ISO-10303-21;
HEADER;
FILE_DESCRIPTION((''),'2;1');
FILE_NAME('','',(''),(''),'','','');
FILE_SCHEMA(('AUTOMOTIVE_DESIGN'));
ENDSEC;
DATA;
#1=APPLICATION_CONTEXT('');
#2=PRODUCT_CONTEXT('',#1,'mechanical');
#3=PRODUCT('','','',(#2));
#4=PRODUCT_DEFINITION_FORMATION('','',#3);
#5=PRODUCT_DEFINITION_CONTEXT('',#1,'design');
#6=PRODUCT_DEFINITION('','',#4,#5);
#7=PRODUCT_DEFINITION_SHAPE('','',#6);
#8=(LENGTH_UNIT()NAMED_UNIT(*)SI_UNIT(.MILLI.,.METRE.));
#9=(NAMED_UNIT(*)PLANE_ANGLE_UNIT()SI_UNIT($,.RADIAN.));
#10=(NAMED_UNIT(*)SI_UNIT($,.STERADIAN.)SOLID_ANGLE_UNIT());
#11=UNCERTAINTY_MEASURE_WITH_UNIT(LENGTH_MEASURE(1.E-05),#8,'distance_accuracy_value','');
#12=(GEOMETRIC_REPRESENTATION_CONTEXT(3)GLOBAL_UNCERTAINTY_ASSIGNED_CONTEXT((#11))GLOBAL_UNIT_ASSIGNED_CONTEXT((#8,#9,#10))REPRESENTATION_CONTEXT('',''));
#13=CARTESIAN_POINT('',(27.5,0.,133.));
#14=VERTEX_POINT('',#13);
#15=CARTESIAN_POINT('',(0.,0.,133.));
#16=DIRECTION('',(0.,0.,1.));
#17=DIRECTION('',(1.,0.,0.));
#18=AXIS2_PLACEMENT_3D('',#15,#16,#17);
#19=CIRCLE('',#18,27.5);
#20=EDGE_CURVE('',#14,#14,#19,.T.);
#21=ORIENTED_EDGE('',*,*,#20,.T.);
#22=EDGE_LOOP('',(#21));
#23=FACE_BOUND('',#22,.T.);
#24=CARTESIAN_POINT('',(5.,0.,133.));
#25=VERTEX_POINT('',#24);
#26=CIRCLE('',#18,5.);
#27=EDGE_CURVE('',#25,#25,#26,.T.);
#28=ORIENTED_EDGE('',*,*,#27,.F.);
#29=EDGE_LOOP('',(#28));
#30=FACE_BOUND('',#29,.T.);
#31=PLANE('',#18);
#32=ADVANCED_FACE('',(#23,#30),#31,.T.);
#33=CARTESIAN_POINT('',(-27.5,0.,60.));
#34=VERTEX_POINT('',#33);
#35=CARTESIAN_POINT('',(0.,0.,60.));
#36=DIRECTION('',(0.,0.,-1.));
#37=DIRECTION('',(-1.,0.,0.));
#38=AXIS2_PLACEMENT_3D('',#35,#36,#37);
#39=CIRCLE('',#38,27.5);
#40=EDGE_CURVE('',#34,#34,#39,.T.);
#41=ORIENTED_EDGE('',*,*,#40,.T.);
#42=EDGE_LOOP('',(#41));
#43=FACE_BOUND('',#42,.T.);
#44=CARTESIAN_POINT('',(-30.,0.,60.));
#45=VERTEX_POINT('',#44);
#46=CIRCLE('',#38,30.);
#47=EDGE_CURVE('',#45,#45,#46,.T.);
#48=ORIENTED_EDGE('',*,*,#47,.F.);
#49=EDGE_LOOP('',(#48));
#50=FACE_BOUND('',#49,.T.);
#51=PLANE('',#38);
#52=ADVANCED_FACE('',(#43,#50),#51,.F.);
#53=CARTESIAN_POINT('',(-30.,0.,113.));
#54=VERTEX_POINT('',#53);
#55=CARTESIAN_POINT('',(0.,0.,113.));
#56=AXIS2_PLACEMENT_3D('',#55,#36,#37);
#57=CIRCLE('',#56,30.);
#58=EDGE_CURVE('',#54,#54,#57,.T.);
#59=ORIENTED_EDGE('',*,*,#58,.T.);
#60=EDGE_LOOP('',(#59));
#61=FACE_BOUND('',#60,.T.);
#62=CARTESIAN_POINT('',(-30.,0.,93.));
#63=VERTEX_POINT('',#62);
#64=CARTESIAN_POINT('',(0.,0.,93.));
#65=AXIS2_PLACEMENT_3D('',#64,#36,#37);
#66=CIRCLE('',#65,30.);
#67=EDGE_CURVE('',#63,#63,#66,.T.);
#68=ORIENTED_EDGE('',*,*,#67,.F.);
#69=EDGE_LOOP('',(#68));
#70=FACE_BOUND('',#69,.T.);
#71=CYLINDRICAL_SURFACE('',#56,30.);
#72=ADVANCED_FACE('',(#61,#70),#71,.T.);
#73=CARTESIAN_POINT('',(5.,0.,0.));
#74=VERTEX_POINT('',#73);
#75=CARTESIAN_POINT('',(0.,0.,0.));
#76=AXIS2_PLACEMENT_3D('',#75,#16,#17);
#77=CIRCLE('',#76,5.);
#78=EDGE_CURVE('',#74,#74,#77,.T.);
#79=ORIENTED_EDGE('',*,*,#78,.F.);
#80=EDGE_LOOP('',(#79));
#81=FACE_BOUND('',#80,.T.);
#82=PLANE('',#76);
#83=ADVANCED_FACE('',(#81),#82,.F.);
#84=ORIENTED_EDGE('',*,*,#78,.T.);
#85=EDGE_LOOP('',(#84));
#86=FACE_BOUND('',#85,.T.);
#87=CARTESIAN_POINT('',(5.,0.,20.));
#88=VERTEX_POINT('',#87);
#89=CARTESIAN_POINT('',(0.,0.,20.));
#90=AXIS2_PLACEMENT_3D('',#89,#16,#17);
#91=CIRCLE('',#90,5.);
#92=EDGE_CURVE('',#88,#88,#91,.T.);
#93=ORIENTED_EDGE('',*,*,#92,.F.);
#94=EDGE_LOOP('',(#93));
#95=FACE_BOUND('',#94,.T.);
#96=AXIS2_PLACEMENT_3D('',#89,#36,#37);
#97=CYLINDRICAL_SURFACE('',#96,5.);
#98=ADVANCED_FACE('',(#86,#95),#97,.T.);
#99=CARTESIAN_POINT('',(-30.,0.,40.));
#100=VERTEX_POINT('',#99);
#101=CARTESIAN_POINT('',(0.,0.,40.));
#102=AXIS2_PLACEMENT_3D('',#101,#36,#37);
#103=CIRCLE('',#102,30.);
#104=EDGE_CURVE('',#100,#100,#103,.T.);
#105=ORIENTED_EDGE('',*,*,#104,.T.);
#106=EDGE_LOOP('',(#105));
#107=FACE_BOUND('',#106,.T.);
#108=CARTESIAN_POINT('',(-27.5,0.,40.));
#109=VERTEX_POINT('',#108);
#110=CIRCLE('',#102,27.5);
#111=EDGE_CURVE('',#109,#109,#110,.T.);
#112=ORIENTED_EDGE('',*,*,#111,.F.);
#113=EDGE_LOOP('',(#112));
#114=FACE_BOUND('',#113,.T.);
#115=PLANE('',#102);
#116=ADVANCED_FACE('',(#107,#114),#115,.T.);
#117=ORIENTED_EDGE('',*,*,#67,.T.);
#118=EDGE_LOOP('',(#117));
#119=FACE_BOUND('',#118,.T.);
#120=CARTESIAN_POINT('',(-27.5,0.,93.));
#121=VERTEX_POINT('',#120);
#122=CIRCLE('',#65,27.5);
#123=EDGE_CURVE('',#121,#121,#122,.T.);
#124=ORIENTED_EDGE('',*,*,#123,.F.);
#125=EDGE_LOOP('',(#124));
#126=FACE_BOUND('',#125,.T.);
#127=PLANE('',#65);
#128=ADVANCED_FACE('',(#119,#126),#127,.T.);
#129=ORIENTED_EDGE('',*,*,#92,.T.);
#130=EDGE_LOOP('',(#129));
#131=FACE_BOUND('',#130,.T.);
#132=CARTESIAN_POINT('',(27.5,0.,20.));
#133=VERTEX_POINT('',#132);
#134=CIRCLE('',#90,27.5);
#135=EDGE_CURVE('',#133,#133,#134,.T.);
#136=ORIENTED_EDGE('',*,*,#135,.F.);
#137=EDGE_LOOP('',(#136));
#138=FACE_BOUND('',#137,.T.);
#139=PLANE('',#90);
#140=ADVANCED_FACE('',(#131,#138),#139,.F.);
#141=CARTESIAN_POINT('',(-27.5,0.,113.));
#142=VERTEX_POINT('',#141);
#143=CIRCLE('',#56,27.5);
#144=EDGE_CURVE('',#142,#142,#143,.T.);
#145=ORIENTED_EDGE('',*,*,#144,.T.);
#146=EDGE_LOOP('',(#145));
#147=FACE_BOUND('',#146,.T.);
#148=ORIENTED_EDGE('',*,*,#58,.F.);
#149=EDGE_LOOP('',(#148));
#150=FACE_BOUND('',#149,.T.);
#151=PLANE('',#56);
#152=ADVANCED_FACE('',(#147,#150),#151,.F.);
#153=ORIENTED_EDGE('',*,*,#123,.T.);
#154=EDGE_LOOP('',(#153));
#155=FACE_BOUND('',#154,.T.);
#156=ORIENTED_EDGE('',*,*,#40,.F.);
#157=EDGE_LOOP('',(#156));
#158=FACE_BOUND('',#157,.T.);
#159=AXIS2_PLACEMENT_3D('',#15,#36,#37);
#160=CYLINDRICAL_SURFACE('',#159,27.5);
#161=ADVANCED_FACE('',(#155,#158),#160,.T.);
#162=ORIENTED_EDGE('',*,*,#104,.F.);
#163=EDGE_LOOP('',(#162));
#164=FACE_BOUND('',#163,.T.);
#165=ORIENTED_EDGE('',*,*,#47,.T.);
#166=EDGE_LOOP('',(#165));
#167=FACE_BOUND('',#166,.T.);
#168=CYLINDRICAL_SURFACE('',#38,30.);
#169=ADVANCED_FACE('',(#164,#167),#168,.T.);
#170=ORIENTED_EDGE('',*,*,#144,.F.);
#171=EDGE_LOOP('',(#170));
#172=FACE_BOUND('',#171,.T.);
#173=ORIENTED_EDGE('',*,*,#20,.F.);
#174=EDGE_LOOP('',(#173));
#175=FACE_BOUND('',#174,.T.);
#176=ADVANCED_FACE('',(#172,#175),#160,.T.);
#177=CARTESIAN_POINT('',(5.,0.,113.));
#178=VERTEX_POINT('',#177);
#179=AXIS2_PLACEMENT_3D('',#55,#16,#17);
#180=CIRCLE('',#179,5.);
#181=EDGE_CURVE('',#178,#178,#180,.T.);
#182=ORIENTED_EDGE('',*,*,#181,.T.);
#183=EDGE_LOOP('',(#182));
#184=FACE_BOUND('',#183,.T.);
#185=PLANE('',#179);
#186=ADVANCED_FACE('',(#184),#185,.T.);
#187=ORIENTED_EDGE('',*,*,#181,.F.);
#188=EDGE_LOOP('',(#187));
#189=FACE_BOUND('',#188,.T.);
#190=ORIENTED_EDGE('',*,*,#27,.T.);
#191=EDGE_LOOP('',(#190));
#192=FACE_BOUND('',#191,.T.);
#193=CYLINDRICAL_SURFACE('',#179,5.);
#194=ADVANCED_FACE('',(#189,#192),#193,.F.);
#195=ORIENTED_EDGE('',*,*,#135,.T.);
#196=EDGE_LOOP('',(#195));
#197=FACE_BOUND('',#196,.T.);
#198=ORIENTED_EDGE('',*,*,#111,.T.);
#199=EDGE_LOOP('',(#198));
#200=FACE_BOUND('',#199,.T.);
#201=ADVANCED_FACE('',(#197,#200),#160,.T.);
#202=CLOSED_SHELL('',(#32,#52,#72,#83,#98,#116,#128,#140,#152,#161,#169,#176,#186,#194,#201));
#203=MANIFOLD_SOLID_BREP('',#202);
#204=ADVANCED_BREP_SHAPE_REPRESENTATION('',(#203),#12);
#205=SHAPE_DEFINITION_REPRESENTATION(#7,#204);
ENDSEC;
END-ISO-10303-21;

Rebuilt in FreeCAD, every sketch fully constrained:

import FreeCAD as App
import Part
import Sketcher

V = App.Vector

doc = App.newDocument("Part")
params = doc.addObject("Spreadsheet::Sheet", "Params")
for row, (alias, value) in enumerate([
    ("sketch1_diameter", "10 mm"),
    ("pad1_length", "20 mm"),
    ("sketch2_diameter", "55 mm"),
    ("pad2_length", "113 mm"),
    ("sketch3_diameter", "60 mm"),
    ("pad3_length", "10 mm"),
    ("pad3_length2", "10 mm"),
    ("sketch4_diameter", "60 mm"),
    ("pad4_length", "10 mm"),
    ("pad4_length2", "10 mm"),
    ("sketch5_diameter", "10 mm"),
    ("pocket1_length", "20 mm"),
], start=1):
    params.set(f"A{row}", alias)
    params.set(f"B{row}", "=" + value)
    params.setAlias(f"B{row}", alias)

body = doc.addObject("PartDesign::Body", "Body")

# Sketch on XY plane
sketch1 = body.newObject("Sketcher::SketchObject", "Sketch")
sketch1.AttachmentSupport = (doc.getObject("XY_Plane"), [""])
sketch1.MapMode = "FlatFace"
sketch1.addGeometry(Part.Circle(V(0, 0, 0), V(0, 0, 1), 5), False)
sketch1.addConstraint([
    Sketcher.Constraint("Coincident", 0, 3, -1, 1),
    Sketcher.Constraint("Diameter", 0, 10.0),
])
sketch1.setExpression("Constraints[1]", "Params.sketch1_diameter")
pad1 = body.newObject("PartDesign::Pad", "Pad")
pad1.Profile = sketch1
pad1.setExpression("Length", "Params.pad1_length")

# Sketch on XY plane
sketch2 = body.newObject("Sketcher::SketchObject", "Sketch001")
sketch2.AttachmentSupport = (doc.getObject("XY_Plane"), [""])
sketch2.MapMode = "FlatFace"
sketch2.AttachmentOffset = App.Placement(V(0, 0, 20), App.Rotation())
sketch2.addGeometry(Part.Circle(V(0, 0, 0), V(0, 0, 1), 27.5), False)
sketch2.addConstraint([
    Sketcher.Constraint("Coincident", 0, 3, -1, 1),
    Sketcher.Constraint("Diameter", 0, 55.0),
])
sketch2.setExpression("Constraints[1]", "Params.sketch2_diameter")
pad2 = body.newObject("PartDesign::Pad", "Pad001")
pad2.Profile = sketch2
pad2.setExpression("Length", "Params.pad2_length")

# Sketch on XY plane
sketch3 = body.newObject("Sketcher::SketchObject", "Sketch002")
sketch3.AttachmentSupport = (doc.getObject("XY_Plane"), [""])
sketch3.MapMode = "FlatFace"
sketch3.AttachmentOffset = App.Placement(V(0, 0, 50), App.Rotation())
sketch3.addGeometry(Part.Circle(V(0, 0, 0), V(0, 0, 1), 30), False)
sketch3.addConstraint([
    Sketcher.Constraint("Coincident", 0, 3, -1, 1),
    Sketcher.Constraint("Diameter", 0, 60.0),
])
sketch3.setExpression("Constraints[1]", "Params.sketch3_diameter")
pad3 = body.newObject("PartDesign::Pad", "Pad002")
pad3.Profile = sketch3
pad3.Type = "TwoLengths"
pad3.setExpression("Length", "Params.pad3_length")
pad3.setExpression("Length2", "Params.pad3_length2")
pad3.Reversed = True

# Sketch on XY plane
sketch4 = body.newObject("Sketcher::SketchObject", "Sketch003")
sketch4.AttachmentSupport = (doc.getObject("XY_Plane"), [""])
sketch4.MapMode = "FlatFace"
sketch4.AttachmentOffset = App.Placement(V(0, 0, 103), App.Rotation())
sketch4.addGeometry(Part.Circle(V(0, 0, 0), V(0, 0, 1), 30), False)
sketch4.addConstraint([
    Sketcher.Constraint("Coincident", 0, 3, -1, 1),
    Sketcher.Constraint("Diameter", 0, 60.0),
])
sketch4.setExpression("Constraints[1]", "Params.sketch4_diameter")
pad4 = body.newObject("PartDesign::Pad", "Pad003")
pad4.Profile = sketch4
pad4.Type = "TwoLengths"
pad4.setExpression("Length", "Params.pad4_length")
pad4.setExpression("Length2", "Params.pad4_length2")
pad4.Reversed = True

# Sketch on XY plane
sketch5 = body.newObject("Sketcher::SketchObject", "Sketch004")
sketch5.AttachmentSupport = (doc.getObject("XY_Plane"), [""])
sketch5.MapMode = "FlatFace"
sketch5.AttachmentOffset = App.Placement(V(0, 0, 113), App.Rotation())
sketch5.addGeometry(Part.Circle(V(0, 0, 0), V(0, 0, 1), 5), False)
sketch5.addConstraint([
    Sketcher.Constraint("Coincident", 0, 3, -1, 1),
    Sketcher.Constraint("Diameter", 0, 10.0),
])
sketch5.setExpression("Constraints[1]", "Params.sketch5_diameter")
pocket1 = body.newObject("PartDesign::Pocket", "Pocket")
pocket1.Profile = sketch5
pocket1.setExpression("Length", "Params.pocket1_length")
pocket1.Reversed = True

doc.recompute()
